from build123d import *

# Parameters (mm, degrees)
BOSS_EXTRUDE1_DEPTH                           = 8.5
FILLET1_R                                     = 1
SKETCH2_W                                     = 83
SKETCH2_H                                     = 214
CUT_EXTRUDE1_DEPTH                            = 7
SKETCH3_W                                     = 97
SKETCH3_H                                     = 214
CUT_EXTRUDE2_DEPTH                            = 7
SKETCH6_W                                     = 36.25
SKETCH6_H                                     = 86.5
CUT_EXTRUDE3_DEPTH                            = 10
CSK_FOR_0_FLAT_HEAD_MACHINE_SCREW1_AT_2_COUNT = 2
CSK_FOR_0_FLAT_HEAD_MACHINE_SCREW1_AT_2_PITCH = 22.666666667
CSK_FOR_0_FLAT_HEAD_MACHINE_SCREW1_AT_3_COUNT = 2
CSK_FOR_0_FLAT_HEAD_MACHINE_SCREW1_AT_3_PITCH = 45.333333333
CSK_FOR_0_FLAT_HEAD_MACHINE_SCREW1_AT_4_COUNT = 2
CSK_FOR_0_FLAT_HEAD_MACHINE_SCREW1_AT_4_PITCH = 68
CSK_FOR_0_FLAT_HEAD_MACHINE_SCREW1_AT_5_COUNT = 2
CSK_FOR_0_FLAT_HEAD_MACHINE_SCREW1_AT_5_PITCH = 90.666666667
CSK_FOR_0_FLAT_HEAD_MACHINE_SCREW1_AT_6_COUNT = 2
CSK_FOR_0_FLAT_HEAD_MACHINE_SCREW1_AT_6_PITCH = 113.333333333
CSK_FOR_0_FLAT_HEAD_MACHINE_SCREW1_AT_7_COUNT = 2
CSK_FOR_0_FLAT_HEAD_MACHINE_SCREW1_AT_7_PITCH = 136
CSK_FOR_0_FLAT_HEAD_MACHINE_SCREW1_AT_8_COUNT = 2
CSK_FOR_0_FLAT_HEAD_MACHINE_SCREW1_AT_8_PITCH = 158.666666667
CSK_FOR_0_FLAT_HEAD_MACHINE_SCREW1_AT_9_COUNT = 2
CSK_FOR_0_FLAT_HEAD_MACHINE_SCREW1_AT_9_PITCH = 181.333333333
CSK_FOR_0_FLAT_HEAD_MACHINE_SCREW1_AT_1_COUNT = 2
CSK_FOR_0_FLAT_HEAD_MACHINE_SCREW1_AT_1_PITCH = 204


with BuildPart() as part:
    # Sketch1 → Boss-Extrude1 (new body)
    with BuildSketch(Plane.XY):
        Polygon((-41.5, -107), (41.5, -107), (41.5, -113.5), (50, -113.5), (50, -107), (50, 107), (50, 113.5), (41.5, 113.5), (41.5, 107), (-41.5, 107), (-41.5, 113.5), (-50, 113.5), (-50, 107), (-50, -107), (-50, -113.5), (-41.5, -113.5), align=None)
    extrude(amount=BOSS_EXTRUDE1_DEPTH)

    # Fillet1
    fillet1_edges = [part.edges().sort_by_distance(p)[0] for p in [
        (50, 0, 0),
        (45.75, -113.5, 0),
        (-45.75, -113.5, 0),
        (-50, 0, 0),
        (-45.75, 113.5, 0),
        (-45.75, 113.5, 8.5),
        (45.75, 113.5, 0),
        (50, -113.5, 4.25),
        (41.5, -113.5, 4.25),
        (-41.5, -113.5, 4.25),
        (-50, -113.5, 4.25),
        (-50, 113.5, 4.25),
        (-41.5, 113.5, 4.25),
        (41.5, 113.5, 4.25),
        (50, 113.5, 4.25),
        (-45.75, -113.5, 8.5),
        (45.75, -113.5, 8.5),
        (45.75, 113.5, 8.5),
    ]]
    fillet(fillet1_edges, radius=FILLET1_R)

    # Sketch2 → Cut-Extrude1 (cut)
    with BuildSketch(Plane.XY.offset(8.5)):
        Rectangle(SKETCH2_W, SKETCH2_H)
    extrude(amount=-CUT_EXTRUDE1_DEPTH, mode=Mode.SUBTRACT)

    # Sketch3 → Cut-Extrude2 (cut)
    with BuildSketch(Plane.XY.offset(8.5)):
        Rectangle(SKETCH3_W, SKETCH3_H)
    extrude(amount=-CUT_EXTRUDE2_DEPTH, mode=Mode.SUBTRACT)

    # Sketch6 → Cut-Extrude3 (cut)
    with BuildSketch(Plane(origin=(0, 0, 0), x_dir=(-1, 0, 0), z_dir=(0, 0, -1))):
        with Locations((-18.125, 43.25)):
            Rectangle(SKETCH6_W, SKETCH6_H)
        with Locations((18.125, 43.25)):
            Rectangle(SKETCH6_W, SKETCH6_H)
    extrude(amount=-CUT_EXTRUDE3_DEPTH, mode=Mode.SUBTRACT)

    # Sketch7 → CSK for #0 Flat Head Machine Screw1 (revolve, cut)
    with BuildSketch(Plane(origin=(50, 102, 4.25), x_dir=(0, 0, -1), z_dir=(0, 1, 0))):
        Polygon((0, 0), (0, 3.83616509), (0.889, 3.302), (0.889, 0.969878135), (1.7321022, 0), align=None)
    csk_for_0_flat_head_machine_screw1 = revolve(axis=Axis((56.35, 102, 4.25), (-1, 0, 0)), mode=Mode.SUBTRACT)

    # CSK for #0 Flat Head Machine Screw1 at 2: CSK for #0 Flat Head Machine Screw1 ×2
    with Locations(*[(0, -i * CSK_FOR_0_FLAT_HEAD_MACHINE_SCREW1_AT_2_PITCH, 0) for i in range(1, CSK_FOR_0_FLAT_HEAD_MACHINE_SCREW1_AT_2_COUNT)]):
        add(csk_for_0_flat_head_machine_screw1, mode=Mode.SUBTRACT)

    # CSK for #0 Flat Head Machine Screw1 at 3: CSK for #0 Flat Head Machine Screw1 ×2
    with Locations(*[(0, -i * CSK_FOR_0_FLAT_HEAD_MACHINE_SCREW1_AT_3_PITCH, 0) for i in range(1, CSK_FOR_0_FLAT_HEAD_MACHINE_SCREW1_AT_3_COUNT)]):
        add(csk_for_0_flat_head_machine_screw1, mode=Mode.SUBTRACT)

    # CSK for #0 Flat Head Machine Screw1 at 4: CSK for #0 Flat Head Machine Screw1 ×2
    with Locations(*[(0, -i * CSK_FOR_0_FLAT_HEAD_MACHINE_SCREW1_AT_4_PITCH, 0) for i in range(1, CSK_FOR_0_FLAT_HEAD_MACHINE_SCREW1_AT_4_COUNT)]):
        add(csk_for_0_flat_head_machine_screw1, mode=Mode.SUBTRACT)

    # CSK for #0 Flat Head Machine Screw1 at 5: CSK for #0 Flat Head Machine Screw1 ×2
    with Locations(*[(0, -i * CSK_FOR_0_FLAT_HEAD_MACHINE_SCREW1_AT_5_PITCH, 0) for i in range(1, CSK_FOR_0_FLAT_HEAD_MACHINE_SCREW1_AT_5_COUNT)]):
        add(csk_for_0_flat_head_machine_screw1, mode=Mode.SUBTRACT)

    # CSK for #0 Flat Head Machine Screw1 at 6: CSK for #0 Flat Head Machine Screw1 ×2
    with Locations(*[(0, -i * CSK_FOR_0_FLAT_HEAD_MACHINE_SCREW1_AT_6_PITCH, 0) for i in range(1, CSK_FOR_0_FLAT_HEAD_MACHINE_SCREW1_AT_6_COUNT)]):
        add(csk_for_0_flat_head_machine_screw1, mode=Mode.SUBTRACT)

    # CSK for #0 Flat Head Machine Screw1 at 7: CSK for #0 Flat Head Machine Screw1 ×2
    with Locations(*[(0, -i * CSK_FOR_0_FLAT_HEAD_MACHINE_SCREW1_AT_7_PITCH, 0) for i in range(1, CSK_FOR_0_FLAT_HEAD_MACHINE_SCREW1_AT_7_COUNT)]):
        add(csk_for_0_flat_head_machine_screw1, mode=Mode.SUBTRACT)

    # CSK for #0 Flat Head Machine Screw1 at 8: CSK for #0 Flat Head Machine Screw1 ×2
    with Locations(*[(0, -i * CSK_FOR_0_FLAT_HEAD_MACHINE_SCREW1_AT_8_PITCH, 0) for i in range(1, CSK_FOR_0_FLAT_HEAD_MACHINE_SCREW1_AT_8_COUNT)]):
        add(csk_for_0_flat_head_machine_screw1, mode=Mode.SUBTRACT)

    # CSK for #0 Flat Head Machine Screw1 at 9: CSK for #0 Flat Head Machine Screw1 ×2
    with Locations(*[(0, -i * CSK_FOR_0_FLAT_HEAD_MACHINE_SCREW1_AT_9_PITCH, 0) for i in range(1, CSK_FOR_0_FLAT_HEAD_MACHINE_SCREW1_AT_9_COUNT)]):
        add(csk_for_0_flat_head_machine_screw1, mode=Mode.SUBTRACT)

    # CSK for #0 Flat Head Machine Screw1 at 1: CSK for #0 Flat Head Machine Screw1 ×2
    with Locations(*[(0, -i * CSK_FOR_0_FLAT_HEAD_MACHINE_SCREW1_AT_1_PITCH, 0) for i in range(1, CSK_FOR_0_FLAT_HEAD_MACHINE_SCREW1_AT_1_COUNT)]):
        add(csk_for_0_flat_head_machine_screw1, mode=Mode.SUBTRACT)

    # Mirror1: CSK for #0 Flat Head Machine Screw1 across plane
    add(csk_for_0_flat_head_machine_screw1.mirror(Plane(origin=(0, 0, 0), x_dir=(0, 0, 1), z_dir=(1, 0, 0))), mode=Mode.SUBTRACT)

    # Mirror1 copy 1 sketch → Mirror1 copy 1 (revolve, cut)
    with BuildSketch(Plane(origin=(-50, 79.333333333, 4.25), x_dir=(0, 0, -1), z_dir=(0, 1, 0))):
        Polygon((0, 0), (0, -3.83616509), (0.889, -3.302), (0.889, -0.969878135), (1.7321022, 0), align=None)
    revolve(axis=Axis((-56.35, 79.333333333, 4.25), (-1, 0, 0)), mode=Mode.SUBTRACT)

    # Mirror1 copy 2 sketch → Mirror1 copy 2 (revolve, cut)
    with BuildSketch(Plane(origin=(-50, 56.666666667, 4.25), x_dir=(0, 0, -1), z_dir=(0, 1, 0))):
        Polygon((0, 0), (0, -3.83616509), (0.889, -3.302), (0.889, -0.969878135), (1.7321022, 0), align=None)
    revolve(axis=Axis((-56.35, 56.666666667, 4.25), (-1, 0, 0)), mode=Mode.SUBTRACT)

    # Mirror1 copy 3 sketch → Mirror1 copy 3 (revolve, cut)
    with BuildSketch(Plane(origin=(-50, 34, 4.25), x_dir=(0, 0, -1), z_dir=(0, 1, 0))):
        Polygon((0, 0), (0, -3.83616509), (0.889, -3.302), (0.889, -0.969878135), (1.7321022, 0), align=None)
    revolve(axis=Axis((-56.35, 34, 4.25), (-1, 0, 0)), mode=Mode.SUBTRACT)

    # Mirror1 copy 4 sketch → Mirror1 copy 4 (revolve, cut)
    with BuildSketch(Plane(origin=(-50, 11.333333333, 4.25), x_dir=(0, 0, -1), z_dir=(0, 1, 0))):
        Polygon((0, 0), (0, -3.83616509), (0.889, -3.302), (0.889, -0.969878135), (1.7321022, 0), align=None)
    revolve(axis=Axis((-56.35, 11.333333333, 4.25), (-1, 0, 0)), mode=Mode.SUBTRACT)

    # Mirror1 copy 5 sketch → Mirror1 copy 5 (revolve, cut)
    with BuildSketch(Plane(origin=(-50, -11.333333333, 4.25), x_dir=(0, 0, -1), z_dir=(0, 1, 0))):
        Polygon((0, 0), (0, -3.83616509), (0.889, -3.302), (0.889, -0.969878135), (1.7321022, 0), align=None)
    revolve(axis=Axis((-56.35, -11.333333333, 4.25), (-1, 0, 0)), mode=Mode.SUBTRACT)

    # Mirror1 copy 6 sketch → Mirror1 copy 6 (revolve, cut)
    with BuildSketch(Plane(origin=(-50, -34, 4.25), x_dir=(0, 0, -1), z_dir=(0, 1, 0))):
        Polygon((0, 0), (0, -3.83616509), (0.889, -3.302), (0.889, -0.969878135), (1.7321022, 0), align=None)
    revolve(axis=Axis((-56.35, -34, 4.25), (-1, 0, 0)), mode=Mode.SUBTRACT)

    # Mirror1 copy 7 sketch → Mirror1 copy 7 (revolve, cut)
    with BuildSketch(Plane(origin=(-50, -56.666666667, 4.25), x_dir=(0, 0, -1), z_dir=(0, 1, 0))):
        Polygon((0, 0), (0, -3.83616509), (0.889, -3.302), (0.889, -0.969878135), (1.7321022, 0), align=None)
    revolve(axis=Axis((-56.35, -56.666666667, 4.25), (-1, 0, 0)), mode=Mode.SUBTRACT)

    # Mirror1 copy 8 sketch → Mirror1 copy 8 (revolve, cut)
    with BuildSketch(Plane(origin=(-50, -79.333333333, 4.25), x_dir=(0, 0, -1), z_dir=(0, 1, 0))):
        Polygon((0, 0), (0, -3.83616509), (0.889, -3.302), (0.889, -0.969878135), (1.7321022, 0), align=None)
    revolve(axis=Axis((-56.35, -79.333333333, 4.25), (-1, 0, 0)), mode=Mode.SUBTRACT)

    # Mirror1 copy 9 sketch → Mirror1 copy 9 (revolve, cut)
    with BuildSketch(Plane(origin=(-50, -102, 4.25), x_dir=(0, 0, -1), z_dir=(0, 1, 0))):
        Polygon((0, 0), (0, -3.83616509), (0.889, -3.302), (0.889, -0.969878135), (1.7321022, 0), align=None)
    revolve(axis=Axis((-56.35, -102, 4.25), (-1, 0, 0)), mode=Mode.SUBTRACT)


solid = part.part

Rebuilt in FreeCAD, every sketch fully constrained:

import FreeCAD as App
import Part
import Sketcher

V = App.Vector
Q = App.Units.Quantity


def edges_at(feature, points):
    """Names of the edges that pass closest to the given points."""
    edges = feature.Shape.Edges
    near = lambda p: min(range(len(edges)), key=lambda i: edges[i].distToShape(Part.Vertex(*p))[0])
    return sorted({f"Edge{near(p) + 1}" for p in points})

doc = App.newDocument("Part")
body = doc.addObject("PartDesign::Body", "Body")

# Sketch on XY plane
sketch1 = body.newObject("Sketcher::SketchObject", "Sketch")
sketch1.AttachmentSupport = (doc.getObject("XY_Plane"), [""])
sketch1.MapMode = "FlatFace"
sketch1.addGeometry([
    Part.LineSegment(V(-41.5, -107, 0), V(41.5, -107, 0)),  # 0
    Part.LineSegment(V(41.5, -107, 0), V(41.5, -113.5, 0)),  # 1
    Part.LineSegment(V(41.5, -113.5, 0), V(50, -113.5, 0)),  # 2
    Part.LineSegment(V(50, -113.5, 0), V(50, 113.5, 0)),  # 3
    Part.LineSegment(V(50, 113.5, 0), V(41.5, 113.5, 0)),  # 4
    Part.LineSegment(V(41.5, 113.5, 0), V(41.5, 107, 0)),  # 5
    Part.LineSegment(V(41.5, 107, 0), V(-41.5, 107, 0)),  # 6
    Part.LineSegment(V(-41.5, 107, 0), V(-41.5, 113.5, 0)),  # 7
    Part.LineSegment(V(-41.5, 113.5, 0), V(-50, 113.5, 0)),  # 8
    Part.LineSegment(V(-50, 113.5, 0), V(-50, -113.5, 0)),  # 9
    Part.LineSegment(V(-50, -113.5, 0), V(-41.5, -113.5, 0)),  # 10
    Part.LineSegment(V(-41.5, -113.5, 0), V(-41.5, -107, 0)),  # 11
], False)
sketch1.addConstraint([
    Sketcher.Constraint("Coincident", 0, 2, 1, 1),
    Sketcher.Constraint("Coincident", 1, 2, 2, 1),
    Sketcher.Constraint("Coincident", 2, 2, 3, 1),
    Sketcher.Constraint("Coincident", 3, 2, 4, 1),
    Sketcher.Constraint("Coincident", 4, 2, 5, 1),
    Sketcher.Constraint("Coincident", 5, 2, 6, 1),
    Sketcher.Constraint("Coincident", 6, 2, 7, 1),
    Sketcher.Constraint("Coincident", 7, 2, 8, 1),
    Sketcher.Constraint("Coincident", 8, 2, 9, 1),
    Sketcher.Constraint("Coincident", 9, 2, 10, 1),
    Sketcher.Constraint("Coincident", 10, 2, 11, 1),
    Sketcher.Constraint("Coincident", 11, 2, 0, 1),
    Sketcher.Constraint("Horizontal", 0),
    Sketcher.Constraint("Vertical", 1),
    Sketcher.Constraint("Horizontal", 2),
    Sketcher.Constraint("Vertical", 3),
    Sketcher.Constraint("Horizontal", 4),
    Sketcher.Constraint("Vertical", 5),
    Sketcher.Constraint("Horizontal", 6),
    Sketcher.Constraint("Vertical", 7),
    Sketcher.Constraint("Horizontal", 8),
    Sketcher.Constraint("Vertical", 9),
    Sketcher.Constraint("Horizontal", 10),
    Sketcher.Constraint("Vertical", 11),
    Sketcher.Constraint("Symmetric", 0, 2, 6, 2, -1, 1),
    Sketcher.Constraint("Symmetric", 2, 2, 8, 2, -1, 1),
    Sketcher.Constraint("Symmetric", 4, 2, 10, 2, -1, 1),
    Sketcher.Constraint("Symmetric", 4, 2, 7, 2, -2),
    Sketcher.Constraint("DistanceX", 0, 1, 0, 2, 83.0),
    Sketcher.Constraint("DistanceY", 3, 1, 3, 2, 227.0),
    Sketcher.Constraint("DistanceX", 2, 1, 2, 2, 8.5),
    Sketcher.Constraint("DistanceY", 1, 2, 1, 1, 6.5),
])
pad1 = body.newObject("PartDesign::Pad", "Pad")
pad1.Profile = sketch1
pad1.Length = 8.5
doc.recompute()

fillet = body.newObject("PartDesign::Fillet", "Fillet")
fillet.Base = (pad1, edges_at(pad1, [
    (50, 0, 0),
    (45.75, -113.5, 0),
    (-45.75, -113.5, 0),
    (-50, 0, 0),
    (-45.75, 113.5, 0),
    (-45.75, 113.5, 8.5),
    (45.75, 113.5, 0),
    (50, -113.5, 4.25),
    (41.5, -113.5, 4.25),
    (-41.5, -113.5, 4.25),
    (-50, -113.5, 4.25),
    (-50, 113.5, 4.25),
    (-41.5, 113.5, 4.25),
    (41.5, 113.5, 4.25),
    (50, 113.5, 4.25),
    (-45.75, -113.5, 8.5),
    (45.75, -113.5, 8.5),
    (45.75, 113.5, 8.5),
]))
fillet.Radius = 1

# Sketch on XY plane
sketch2 = body.newObject("Sketcher::SketchObject", "Sketch001")
sketch2.AttachmentSupport = (doc.getObject("XY_Plane"), [""])
sketch2.MapMode = "FlatFace"
sketch2.AttachmentOffset = App.Placement(V(0, 0, 8.5), App.Rotation())
sketch2.addGeometry([
    Part.LineSegment(V(-41.5, 107, 0), V(-41.5, -107, 0)),
    Part.LineSegment(V(-41.5, -107, 0), V(41.5, -107, 0)),
    Part.LineSegment(V(41.5, -107, 0), V(41.5, 107, 0)),
    Part.LineSegment(V(41.5, 107, 0), V(-41.5, 107, 0)),
], False)
sketch2.addConstraint([
    Sketcher.Constraint("Coincident", 0, 2, 1, 1),
    Sketcher.Constraint("Coincident", 1, 2, 2, 1),
    Sketcher.Constraint("Coincident", 2, 2, 3, 1),
    Sketcher.Constraint("Coincident", 3, 2, 0, 1),
    Sketcher.Constraint("Vertical", 0),
    Sketcher.Constraint("Horizontal", 1),
    Sketcher.Constraint("Vertical", 2),
    Sketcher.Constraint("Horizontal", 3),
    Sketcher.Constraint("Symmetric", 0, 2, 2, 2, -1, 1),
    Sketcher.Constraint("DistanceX", 1, 1, 1, 2, 83.0),
    Sketcher.Constraint("DistanceY", 0, 2, 0, 1, 214.0),
])
pocket1 = body.newObject("PartDesign::Pocket", "Pocket")
pocket1.Profile = sketch2
pocket1.Length = 7

# Sketch on XY plane
sketch3 = body.newObject("Sketcher::SketchObject", "Sketch002")
sketch3.AttachmentSupport = (doc.getObject("XY_Plane"), [""])
sketch3.MapMode = "FlatFace"
sketch3.AttachmentOffset = App.Placement(V(0, 0, 8.5), App.Rotation())
sketch3.addGeometry([
    Part.LineSegment(V(-48.5, 107, 0), V(-48.5, -107, 0)),
    Part.LineSegment(V(-48.5, -107, 0), V(48.5, -107, 0)),
    Part.LineSegment(V(48.5, -107, 0), V(48.5, 107, 0)),
    Part.LineSegment(V(48.5, 107, 0), V(-48.5, 107, 0)),
], False)
sketch3.addConstraint([
    Sketcher.Constraint("Coincident", 0, 2, 1, 1),
    Sketcher.Constraint("Coincident", 1, 2, 2, 1),
    Sketcher.Constraint("Coincident", 2, 2, 3, 1),
    Sketcher.Constraint("Coincident", 3, 2, 0, 1),
    Sketcher.Constraint("Vertical", 0),
    Sketcher.Constraint("Horizontal", 1),
    Sketcher.Constraint("Vertical", 2),
    Sketcher.Constraint("Horizontal", 3),
    Sketcher.Constraint("Symmetric", 0, 2, 2, 2, -1, 1),
    Sketcher.Constraint("DistanceX", 1, 1, 1, 2, 97.0),
    Sketcher.Constraint("DistanceY", 0, 2, 0, 1, 214.0),
])
pocket2 = body.newObject("PartDesign::Pocket", "Pocket001")
pocket2.Profile = sketch3
pocket2.Length = 7

# Sketch on XY plane
sketch4 = body.newObject("Sketcher::SketchObject", "Sketch003")
sketch4.AttachmentSupport = (doc.getObject("XY_Plane"), [""])
sketch4.MapMode = "FlatFace"
sketch4.addGeometry([
    Part.LineSegment(V(36.25, 86.5, 0), V(36.25, 0, 0)),
    Part.LineSegment(V(36.25, 0, 0), V(-36.25, 0, 0)),
    Part.LineSegment(V(-36.25, 0, 0), V(-36.25, 86.5, 0)),
    Part.LineSegment(V(-36.25, 86.5, 0), V(36.25, 86.5, 0)),
], False)
sketch4.addConstraint([
    Sketcher.Constraint("Coincident", 0, 2, 1, 1),
    Sketcher.Constraint("Coincident", 1, 2, 2, 1),
    Sketcher.Constraint("Coincident", 2, 2, 3, 1),
    Sketcher.Constraint("Coincident", 3, 2, 0, 1),
    Sketcher.Constraint("Vertical", 0),
    Sketcher.Constraint("Horizontal", 1),
    Sketcher.Constraint("Vertical", 2),
    Sketcher.Constraint("Horizontal", 3),
    Sketcher.Constraint("Symmetric", 0, 2, 1, 2, -1, 1),
    Sketcher.Constraint("DistanceX", 1, 2, 1, 1, 72.5),
    Sketcher.Constraint("DistanceY", 0, 2, 0, 1, 86.5),
])
pocket3 = body.newObject("PartDesign::Pocket", "Pocket002")
pocket3.Profile = sketch4
pocket3.Length = 10
pocket3.Reversed = True

# Sketch on XZ plane
sketch5 = body.newObject("Sketcher::SketchObject", "Sketch004")
sketch5.AttachmentSupport = (doc.getObject("XZ_Plane"), [""])
sketch5.MapMode = "FlatFace"
sketch5.AttachmentOffset = App.Placement(V(0, 0, -102), App.Rotation())
sketch5.addGeometry([
    Part.LineSegment(V(46.163835, 4.25, 0), V(50, 4.25, 0)),  # 0
    Part.LineSegment(V(50, 4.25, 0), V(50, 2.517898, 0)),  # 1
    Part.LineSegment(V(50, 2.517898, 0), V(49.030122, 3.361, 0)),  # 2
    Part.LineSegment(V(49.030122, 3.361, 0), V(46.698, 3.361, 0)),  # 3
    Part.LineSegment(V(46.698, 3.361, 0), V(46.163835, 4.25, 0)),  # 4
], False)
sketch5.addGeometry(Part.LineSegment(V(50, 4.25, 0), V(46.163835, 4.25, 0)), True)  # axis
sketch5.addConstraint([
    Sketcher.Constraint("Coincident", 0, 2, 1, 1),
    Sketcher.Constraint("Coincident", 1, 2, 2, 1),
    Sketcher.Constraint("Coincident", 2, 2, 3, 1),
    Sketcher.Constraint("Coincident", 3, 2, 4, 1),
    Sketcher.Constraint("Coincident", 4, 2, 0, 1),
    Sketcher.Constraint("Horizontal", 0),
    Sketcher.Constraint("Vertical", 1),
    Sketcher.Constraint("Horizontal", 3),
    Sketcher.Constraint("Horizontal", 5),
    Sketcher.Constraint("Coincident", 5, 1, 0, 2),
    Sketcher.Constraint("Equal", 0, 5),
    Sketcher.Constraint("Angle", 2, Q("139 deg")),
    Sketcher.Constraint("Angle", 4, Q("121 deg")),
    Sketcher.Constraint("DistanceX", -1, 1, 0, 2, 50.0),
    Sketcher.Constraint("DistanceY", -1, 1, 0, 2, 4.25),
    Sketcher.Constraint("DistanceY", -1, 1, 2, 2, 3.361),
    Sketcher.Constraint("DistanceX", -1, 1, 3, 2, 46.698),
    Sketcher.Constraint("Distance", 2, 1.285101),
])
groove = body.newObject("PartDesign::Groove", "Groove")
groove.Profile = sketch5
groove.ReferenceAxis = (sketch5, ["Axis0"])
groove.Angle = 360
doc.recompute()

linearpattern = body.newObject("PartDesign::LinearPattern", "LinearPattern")
linearpattern.Originals = [groove]
linearpattern.Direction = (doc.getObject("Y_Axis"), [""])
linearpattern.Mode = "offset"
linearpattern.Offset = 22.666667
linearpattern.Occurrences = 2
linearpattern.Reversed = True
body.Tip = linearpattern
doc.recompute()

linearpattern2 = body.newObject("PartDesign::LinearPattern", "LinearPattern001")
linearpattern2.Originals = [groove]
linearpattern2.Direction = (doc.getObject("Y_Axis"), [""])
linearpattern2.Mode = "offset"
linearpattern2.Offset = 45.333333
linearpattern2.Occurrences = 2
linearpattern2.Reversed = True
body.Tip = linearpattern2
doc.recompute()

linearpattern3 = body.newObject("PartDesign::LinearPattern", "LinearPattern002")
linearpattern3.Originals = [groove]
linearpattern3.Direction = (doc.getObject("Y_Axis"), [""])
linearpattern3.Mode = "offset"
linearpattern3.Offset = 68
linearpattern3.Occurrences = 2
linearpattern3.Reversed = True
body.Tip = linearpattern3
doc.recompute()

linearpattern4 = body.newObject("PartDesign::LinearPattern", "LinearPattern003")
linearpattern4.Originals = [groove]
linearpattern4.Direction = (doc.getObject("Y_Axis"), [""])
linearpattern4.Mode = "offset"
linearpattern4.Offset = 90.666667
linearpattern4.Occurrences = 2
linearpattern4.Reversed = True
body.Tip = linearpattern4
doc.recompute()

linearpattern5 = body.newObject("PartDesign::LinearPattern", "LinearPattern004")
linearpattern5.Originals = [groove]
linearpattern5.Direction = (doc.getObject("Y_Axis"), [""])
linearpattern5.Mode = "offset"
linearpattern5.Offset = 113.333333
linearpattern5.Occurrences = 2
linearpattern5.Reversed = True
body.Tip = linearpattern5
doc.recompute()

linearpattern6 = body.newObject("PartDesign::LinearPattern", "LinearPattern005")
linearpattern6.Originals = [groove]
linearpattern6.Direction = (doc.getObject("Y_Axis"), [""])
linearpattern6.Mode = "offset"
linearpattern6.Offset = 136
linearpattern6.Occurrences = 2
linearpattern6.Reversed = True
body.Tip = linearpattern6
doc.recompute()

linearpattern7 = body.newObject("PartDesign::LinearPattern", "LinearPattern006")
linearpattern7.Originals = [groove]
linearpattern7.Direction = (doc.getObject("Y_Axis"), [""])
linearpattern7.Mode = "offset"
linearpattern7.Offset = 158.666667
linearpattern7.Occurrences = 2
linearpattern7.Reversed = True
body.Tip = linearpattern7
doc.recompute()

linearpattern8 = body.newObject("PartDesign::LinearPattern", "LinearPattern007")
linearpattern8.Originals = [groove]
linearpattern8.Direction = (doc.getObject("Y_Axis"), [""])
linearpattern8.Mode = "offset"
linearpattern8.Offset = 181.333333
linearpattern8.Occurrences = 2
linearpattern8.Reversed = True
body.Tip = linearpattern8
doc.recompute()

linearpattern9 = body.newObject("PartDesign::LinearPattern", "LinearPattern008")
linearpattern9.Originals = [groove]
linearpattern9.Direction = (doc.getObject("Y_Axis"), [""])
linearpattern9.Mode = "offset"
linearpattern9.Offset = 204
linearpattern9.Occurrences = 2
linearpattern9.Reversed = True
body.Tip = linearpattern9
doc.recompute()

mirrored = body.newObject("PartDesign::Mirrored", "Mirrored")
mirrored.Originals = [groove]
mirrored.MirrorPlane = (doc.getObject("YZ_Plane"), [""])
body.Tip = mirrored

# Sketch on XZ plane
sketch6 = body.newObject("Sketcher::SketchObject", "Sketch005")
sketch6.AttachmentSupport = (doc.getObject("XZ_Plane"), [""])
sketch6.MapMode = "FlatFace"
sketch6.AttachmentOffset = App.Placement(V(0, 0, -79.333333), App.Rotation())
sketch6.addGeometry([
    Part.LineSegment(V(-50, 4.25, 0), V(-46.163835, 4.25, 0)),  # 0
    Part.LineSegment(V(-46.163835, 4.25, 0), V(-46.698, 3.361, 0)),  # 1
    Part.LineSegment(V(-46.698, 3.361, 0), V(-49.030122, 3.361, 0)),  # 2
    Part.LineSegment(V(-49.030122, 3.361, 0), V(-50, 2.517898, 0)),  # 3
    Part.LineSegment(V(-50, 2.517898, 0), V(-50, 4.25, 0)),  # 4
], False)
sketch6.addGeometry(Part.LineSegment(V(-46.163835, 4.25, 0), V(-50, 4.25, 0)), True)  # axis
sketch6.addConstraint([
    Sketcher.Constraint("Coincident", 0, 2, 1, 1),
    Sketcher.Constraint("Coincident", 1, 2, 2, 1),
    Sketcher.Constraint("Coincident", 2, 2, 3, 1),
    Sketcher.Constraint("Coincident", 3, 2, 4, 1),
    Sketcher.Constraint("Coincident", 4, 2, 0, 1),
    Sketcher.Constraint("Horizontal", 0),
    Sketcher.Constraint("Horizontal", 2),
    Sketcher.Constraint("Vertical", 4),
    Sketcher.Constraint("Horizontal", 5),
    Sketcher.Constraint("Coincident", 5, 1, 0, 2),
    Sketcher.Constraint("Vertical", 3, 2, 5, 2),
    Sketcher.Constraint("Angle", 1, Q("-121 deg")),
    Sketcher.Constraint("Angle", 3, Q("-139 deg")),
    Sketcher.Constraint("DistanceX", 3, 2, -1, 1, 50.0),
    Sketcher.Constraint("DistanceY", -1, 1, 0, 2, 4.25),
    Sketcher.Constraint("DistanceX", 1, 2, -1, 1, 46.698),
    Sketcher.Constraint("DistanceY", -1, 1, 1, 2, 3.361),
    Sketcher.Constraint("Distance", 3, 1.285101),
])
groove2 = body.newObject("PartDesign::Groove", "Groove001")
groove2.Profile = sketch6
groove2.ReferenceAxis = (sketch6, ["Axis0"])
groove2.Angle = 360

# Sketch on XZ plane
sketch7 = body.newObject("Sketcher::SketchObject", "Sketch006")
sketch7.AttachmentSupport = (doc.getObject("XZ_Plane"), [""])
sketch7.MapMode = "FlatFace"
sketch7.AttachmentOffset = App.Placement(V(0, 0, -56.666667), App.Rotation())
sketch7.addGeometry([
    Part.LineSegment(V(-50, 4.25, 0), V(-46.163835, 4.25, 0)),  # 0
    Part.LineSegment(V(-46.163835, 4.25, 0), V(-46.698, 3.361, 0)),  # 1
    Part.LineSegment(V(-46.698, 3.361, 0), V(-49.030122, 3.361, 0)),  # 2
    Part.LineSegment(V(-49.030122, 3.361, 0), V(-50, 2.517898, 0)),  # 3
    Part.LineSegment(V(-50, 2.517898, 0), V(-50, 4.25, 0)),  # 4
], False)
sketch7.addGeometry(Part.LineSegment(V(-46.163835, 4.25, 0), V(-50, 4.25, 0)), True)  # axis
sketch7.addConstraint([
    Sketcher.Constraint("Coincident", 0, 2, 1, 1),
    Sketcher.Constraint("Coincident", 1, 2, 2, 1),
    Sketcher.Constraint("Coincident", 2, 2, 3, 1),
    Sketcher.Constraint("Coincident", 3, 2, 4, 1),
    Sketcher.Constraint("Coincident", 4, 2, 0, 1),
    Sketcher.Constraint("Horizontal", 0),
    Sketcher.Constraint("Horizontal", 2),
    Sketcher.Constraint("Vertical", 4),
    Sketcher.Constraint("Horizontal", 5),
    Sketcher.Constraint("Coincident", 5, 1, 0, 2),
    Sketcher.Constraint("Vertical", 3, 2, 5, 2),
    Sketcher.Constraint("Angle", 1, Q("-121 deg")),
    Sketcher.Constraint("Angle", 3, Q("-139 deg")),
    Sketcher.Constraint("DistanceX", 3, 2, -1, 1, 50.0),
    Sketcher.Constraint("DistanceY", -1, 1, 0, 2, 4.25),
    Sketcher.Constraint("DistanceX", 1, 2, -1, 1, 46.698),
    Sketcher.Constraint("DistanceY", -1, 1, 1, 2, 3.361),
    Sketcher.Constraint("Distance", 3, 1.285101),
])
groove3 = body.newObject("PartDesign::Groove", "Groove002")
groove3.Profile = sketch7
groove3.ReferenceAxis = (sketch7, ["Axis0"])
groove3.Angle = 360

# Sketch on XZ plane
sketch8 = body.newObject("Sketcher::SketchObject", "Sketch007")
sketch8.AttachmentSupport = (doc.getObject("XZ_Plane"), [""])
sketch8.MapMode = "FlatFace"
sketch8.AttachmentOffset = App.Placement(V(0, 0, -34), App.Rotation())
sketch8.addGeometry([
    Part.LineSegment(V(-50, 4.25, 0), V(-46.163835, 4.25, 0)),  # 0
    Part.LineSegment(V(-46.163835, 4.25, 0), V(-46.698, 3.361, 0)),  # 1
    Part.LineSegment(V(-46.698, 3.361, 0), V(-49.030122, 3.361, 0)),  # 2
    Part.LineSegment(V(-49.030122, 3.361, 0), V(-50, 2.517898, 0)),  # 3
    Part.LineSegment(V(-50, 2.517898, 0), V(-50, 4.25, 0)),  # 4
], False)
sketch8.addGeometry(Part.LineSegment(V(-46.163835, 4.25, 0), V(-50, 4.25, 0)), True)  # axis
sketch8.addConstraint([
    Sketcher.Constraint("Coincident", 0, 2, 1, 1),
    Sketcher.Constraint("Coincident", 1, 2, 2, 1),
    Sketcher.Constraint("Coincident", 2, 2, 3, 1),
    Sketcher.Constraint("Coincident", 3, 2, 4, 1),
    Sketcher.Constraint("Coincident", 4, 2, 0, 1),
    Sketcher.Constraint("Horizontal", 0),
    Sketcher.Constraint("Horizontal", 2),
    Sketcher.Constraint("Vertical", 4),
    Sketcher.Constraint("Horizontal", 5),
    Sketcher.Constraint("Coincident", 5, 1, 0, 2),
    Sketcher.Constraint("Vertical", 3, 2, 5, 2),
    Sketcher.Constraint("Angle", 1, Q("-121 deg")),
    Sketcher.Constraint("Angle", 3, Q("-139 deg")),
    Sketcher.Constraint("DistanceX", 3, 2, -1, 1, 50.0),
    Sketcher.Constraint("DistanceY", -1, 1, 0, 2, 4.25),
    Sketcher.Constraint("DistanceX", 1, 2, -1, 1, 46.698),
    Sketcher.Constraint("DistanceY", -1, 1, 1, 2, 3.361),
    Sketcher.Constraint("Distance", 3, 1.285101),
])
groove4 = body.newObject("PartDesign::Groove", "Groove003")
groove4.Profile = sketch8
groove4.ReferenceAxis = (sketch8, ["Axis0"])
groove4.Angle = 360

# Sketch on XZ plane
sketch9 = body.newObject("Sketcher::SketchObject", "Sketch008")
sketch9.AttachmentSupport = (doc.getObject("XZ_Plane"), [""])
sketch9.MapMode = "FlatFace"
sketch9.AttachmentOffset = App.Placement(V(0, 0, -11.333333), App.Rotation())
sketch9.addGeometry([
    Part.LineSegment(V(-50, 4.25, 0), V(-46.163835, 4.25, 0)),  # 0
    Part.LineSegment(V(-46.163835, 4.25, 0), V(-46.698, 3.361, 0)),  # 1
    Part.LineSegment(V(-46.698, 3.361, 0), V(-49.030122, 3.361, 0)),  # 2
    Part.LineSegment(V(-49.030122, 3.361, 0), V(-50, 2.517898, 0)),  # 3
    Part.LineSegment(V(-50, 2.517898, 0), V(-50, 4.25, 0)),  # 4
], False)
sketch9.addGeometry(Part.LineSegment(V(-46.163835, 4.25, 0), V(-50, 4.25, 0)), True)  # axis
sketch9.addConstraint([
    Sketcher.Constraint("Coincident", 0, 2, 1, 1),
    Sketcher.Constraint("Coincident", 1, 2, 2, 1),
    Sketcher.Constraint("Coincident", 2, 2, 3, 1),
    Sketcher.Constraint("Coincident", 3, 2, 4, 1),
    Sketcher.Constraint("Coincident", 4, 2, 0, 1),
    Sketcher.Constraint("Horizontal", 0),
    Sketcher.Constraint("Horizontal", 2),
    Sketcher.Constraint("Vertical", 4),
    Sketcher.Constraint("Horizontal", 5),
    Sketcher.Constraint("Coincident", 5, 1, 0, 2),
    Sketcher.Constraint("Vertical", 3, 2, 5, 2),
    Sketcher.Constraint("Angle", 1, Q("-121 deg")),
    Sketcher.Constraint("Angle", 3, Q("-139 deg")),
    Sketcher.Constraint("DistanceX", 3, 2, -1, 1, 50.0),
    Sketcher.Constraint("DistanceY", -1, 1, 0, 2, 4.25),
    Sketcher.Constraint("DistanceX", 1, 2, -1, 1, 46.698),
    Sketcher.Constraint("DistanceY", -1, 1, 1, 2, 3.361),
    Sketcher.Constraint("Distance", 3, 1.285101),
])
groove5 = body.newObject("PartDesign::Groove", "Groove004")
groove5.Profile = sketch9
groove5.ReferenceAxis = (sketch9, ["Axis0"])
groove5.Angle = 360

# Sketch on XZ plane
sketch10 = body.newObject("Sketcher::SketchObject", "Sketch009")
sketch10.AttachmentSupport = (doc.getObject("XZ_Plane"), [""])
sketch10.MapMode = "FlatFace"
sketch10.AttachmentOffset = App.Placement(V(0, 0, 11.333333), App.Rotation())
sketch10.addGeometry([
    Part.LineSegment(V(-50, 4.25, 0), V(-46.163835, 4.25, 0)),  # 0
    Part.LineSegment(V(-46.163835, 4.25, 0), V(-46.698, 3.361, 0)),  # 1
    Part.LineSegment(V(-46.698, 3.361, 0), V(-49.030122, 3.361, 0)),  # 2
    Part.LineSegment(V(-49.030122, 3.361, 0), V(-50, 2.517898, 0)),  # 3
    Part.LineSegment(V(-50, 2.517898, 0), V(-50, 4.25, 0)),  # 4
], False)
sketch10.addGeometry(Part.LineSegment(V(-46.163835, 4.25, 0), V(-50, 4.25, 0)), True)  # axis
sketch10.addConstraint([
    Sketcher.Constraint("Coincident", 0, 2, 1, 1),
    Sketcher.Constraint("Coincident", 1, 2, 2, 1),
    Sketcher.Constraint("Coincident", 2, 2, 3, 1),
    Sketcher.Constraint("Coincident", 3, 2, 4, 1),
    Sketcher.Constraint("Coincident", 4, 2, 0, 1),
    Sketcher.Constraint("Horizontal", 0),
    Sketcher.Constraint("Horizontal", 2),
    Sketcher.Constraint("Vertical", 4),
    Sketcher.Constraint("Horizontal", 5),
    Sketcher.Constraint("Coincident", 5, 1, 0, 2),
    Sketcher.Constraint("Vertical", 3, 2, 5, 2),
    Sketcher.Constraint("Angle", 1, Q("-121 deg")),
    Sketcher.Constraint("Angle", 3, Q("-139 deg")),
    Sketcher.Constraint("DistanceX", 3, 2, -1, 1, 50.0),
    Sketcher.Constraint("DistanceY", -1, 1, 0, 2, 4.25),
    Sketcher.Constraint("DistanceX", 1, 2, -1, 1, 46.698),
    Sketcher.Constraint("DistanceY", -1, 1, 1, 2, 3.361),
    Sketcher.Constraint("Distance", 3, 1.285101),
])
groove6 = body.newObject("PartDesign::Groove", "Groove005")
groove6.Profile = sketch10
groove6.ReferenceAxis = (sketch10, ["Axis0"])
groove6.Angle = 360

# Sketch on XZ plane
sketch11 = body.newObject("Sketcher::SketchObject", "Sketch010")
sketch11.AttachmentSupport = (doc.getObject("XZ_Plane"), [""])
sketch11.MapMode = "FlatFace"
sketch11.AttachmentOffset = App.Placement(V(0, 0, 34), App.Rotation())
sketch11.addGeometry([
    Part.LineSegment(V(-50, 4.25, 0), V(-46.163835, 4.25, 0)),  # 0
    Part.LineSegment(V(-46.163835, 4.25, 0), V(-46.698, 3.361, 0)),  # 1
    Part.LineSegment(V(-46.698, 3.361, 0), V(-49.030122, 3.361, 0)),  # 2
    Part.LineSegment(V(-49.030122, 3.361, 0), V(-50, 2.517898, 0)),  # 3
    Part.LineSegment(V(-50, 2.517898, 0), V(-50, 4.25, 0)),  # 4
], False)
sketch11.addGeometry(Part.LineSegment(V(-46.163835, 4.25, 0), V(-50, 4.25, 0)), True)  # axis
sketch11.addConstraint([
    Sketcher.Constraint("Coincident", 0, 2, 1, 1),
    Sketcher.Constraint("Coincident", 1, 2, 2, 1),
    Sketcher.Constraint("Coincident", 2, 2, 3, 1),
    Sketcher.Constraint("Coincident", 3, 2, 4, 1),
    Sketcher.Constraint("Coincident", 4, 2, 0, 1),
    Sketcher.Constraint("Horizontal", 0),
    Sketcher.Constraint("Horizontal", 2),
    Sketcher.Constraint("Vertical", 4),
    Sketcher.Constraint("Horizontal", 5),
    Sketcher.Constraint("Coincident", 5, 1, 0, 2),
    Sketcher.Constraint("Vertical", 3, 2, 5, 2),
    Sketcher.Constraint("Angle", 1, Q("-121 deg")),
    Sketcher.Constraint("Angle", 3, Q("-139 deg")),
    Sketcher.Constraint("DistanceX", 3, 2, -1, 1, 50.0),
    Sketcher.Constraint("DistanceY", -1, 1, 0, 2, 4.25),
    Sketcher.Constraint("DistanceX", 1, 2, -1, 1, 46.698),
    Sketcher.Constraint("DistanceY", -1, 1, 1, 2, 3.361),
    Sketcher.Constraint("Distance", 3, 1.285101),
])
groove7 = body.newObject("PartDesign::Groove", "Groove006")
groove7.Profile = sketch11
groove7.ReferenceAxis = (sketch11, ["Axis0"])
groove7.Angle = 360

# Sketch on XZ plane
sketch12 = body.newObject("Sketcher::SketchObject", "Sketch011")
sketch12.AttachmentSupport = (doc.getObject("XZ_Plane"), [""])
sketch12.MapMode = "FlatFace"
sketch12.AttachmentOffset = App.Placement(V(0, 0, 56.666667), App.Rotation())
sketch12.addGeometry([
    Part.LineSegment(V(-50, 4.25, 0), V(-46.163835, 4.25, 0)),  # 0
    Part.LineSegment(V(-46.163835, 4.25, 0), V(-46.698, 3.361, 0)),  # 1
    Part.LineSegment(V(-46.698, 3.361, 0), V(-49.030122, 3.361, 0)),  # 2
    Part.LineSegment(V(-49.030122, 3.361, 0), V(-50, 2.517898, 0)),  # 3
    Part.LineSegment(V(-50, 2.517898, 0), V(-50, 4.25, 0)),  # 4
], False)
sketch12.addGeometry(Part.LineSegment(V(-46.163835, 4.25, 0), V(-50, 4.25, 0)), True)  # axis
sketch12.addConstraint([
    Sketcher.Constraint("Coincident", 0, 2, 1, 1),
    Sketcher.Constraint("Coincident", 1, 2, 2, 1),
    Sketcher.Constraint("Coincident", 2, 2, 3, 1),
    Sketcher.Constraint("Coincident", 3, 2, 4, 1),
    Sketcher.Constraint("Coincident", 4, 2, 0, 1),
    Sketcher.Constraint("Horizontal", 0),
    Sketcher.Constraint("Horizontal", 2),
    Sketcher.Constraint("Vertical", 4),
    Sketcher.Constraint("Horizontal", 5),
    Sketcher.Constraint("Coincident", 5, 1, 0, 2),
    Sketcher.Constraint("Vertical", 3, 2, 5, 2),
    Sketcher.Constraint("Angle", 1, Q("-121 deg")),
    Sketcher.Constraint("Angle", 3, Q("-139 deg")),
    Sketcher.Constraint("DistanceX", 3, 2, -1, 1, 50.0),
    Sketcher.Constraint("DistanceY", -1, 1, 0, 2, 4.25),
    Sketcher.Constraint("DistanceX", 1, 2, -1, 1, 46.698),
    Sketcher.Constraint("DistanceY", -1, 1, 1, 2, 3.361),
    Sketcher.Constraint("Distance", 3, 1.285101),
])
groove8 = body.newObject("PartDesign::Groove", "Groove007")
groove8.Profile = sketch12
groove8.ReferenceAxis = (sketch12, ["Axis0"])
groove8.Angle = 360

# Sketch on XZ plane
sketch13 = body.newObject("Sketcher::SketchObject", "Sketch012")
sketch13.AttachmentSupport = (doc.getObject("XZ_Plane"), [""])
sketch13.MapMode = "FlatFace"
sketch13.AttachmentOffset = App.Placement(V(0, 0, 79.333333), App.Rotation())
sketch13.addGeometry([
    Part.LineSegment(V(-50, 4.25, 0), V(-46.163835, 4.25, 0)),  # 0
    Part.LineSegment(V(-46.163835, 4.25, 0), V(-46.698, 3.361, 0)),  # 1
    Part.LineSegment(V(-46.698, 3.361, 0), V(-49.030122, 3.361, 0)),  # 2
    Part.LineSegment(V(-49.030122, 3.361, 0), V(-50, 2.517898, 0)),  # 3
    Part.LineSegment(V(-50, 2.517898, 0), V(-50, 4.25, 0)),  # 4
], False)
sketch13.addGeometry(Part.LineSegment(V(-46.163835, 4.25, 0), V(-50, 4.25, 0)), True)  # axis
sketch13.addConstraint([
    Sketcher.Constraint("Coincident", 0, 2, 1, 1),
    Sketcher.Constraint("Coincident", 1, 2, 2, 1),
    Sketcher.Constraint("Coincident", 2, 2, 3, 1),
    Sketcher.Constraint("Coincident", 3, 2, 4, 1),
    Sketcher.Constraint("Coincident", 4, 2, 0, 1),
    Sketcher.Constraint("Horizontal", 0),
    Sketcher.Constraint("Horizontal", 2),
    Sketcher.Constraint("Vertical", 4),
    Sketcher.Constraint("Horizontal", 5),
    Sketcher.Constraint("Coincident", 5, 1, 0, 2),
    Sketcher.Constraint("Vertical", 3, 2, 5, 2),
    Sketcher.Constraint("Angle", 1, Q("-121 deg")),
    Sketcher.Constraint("Angle", 3, Q("-139 deg")),
    Sketcher.Constraint("DistanceX", 3, 2, -1, 1, 50.0),
    Sketcher.Constraint("DistanceY", -1, 1, 0, 2, 4.25),
    Sketcher.Constraint("DistanceX", 1, 2, -1, 1, 46.698),
    Sketcher.Constraint("DistanceY", -1, 1, 1, 2, 3.361),
    Sketcher.Constraint("Distance", 3, 1.285101),
])
groove9 = body.newObject("PartDesign::Groove", "Groove008")
groove9.Profile = sketch13
groove9.ReferenceAxis = (sketch13, ["Axis0"])
groove9.Angle = 360

# Sketch on XZ plane
sketch14 = body.newObject("Sketcher::SketchObject", "Sketch013")
sketch14.AttachmentSupport = (doc.getObject("XZ_Plane"), [""])
sketch14.MapMode = "FlatFace"
sketch14.AttachmentOffset = App.Placement(V(0, 0, 102), App.Rotation())
sketch14.addGeometry([
    Part.LineSegment(V(-50, 4.25, 0), V(-46.163835, 4.25, 0)),  # 0
    Part.LineSegment(V(-46.163835, 4.25, 0), V(-46.698, 3.361, 0)),  # 1
    Part.LineSegment(V(-46.698, 3.361, 0), V(-49.030122, 3.361, 0)),  # 2
    Part.LineSegment(V(-49.030122, 3.361, 0), V(-50, 2.517898, 0)),  # 3
    Part.LineSegment(V(-50, 2.517898, 0), V(-50, 4.25, 0)),  # 4
], False)
sketch14.addGeometry(Part.LineSegment(V(-46.163835, 4.25, 0), V(-50, 4.25, 0)), True)  # axis
sketch14.addConstraint([
    Sketcher.Constraint("Coincident", 0, 2, 1, 1),
    Sketcher.Constraint("Coincident", 1, 2, 2, 1),
    Sketcher.Constraint("Coincident", 2, 2, 3, 1),
    Sketcher.Constraint("Coincident", 3, 2, 4, 1),
    Sketcher.Constraint("Coincident", 4, 2, 0, 1),
    Sketcher.Constraint("Horizontal", 0),
    Sketcher.Constraint("Horizontal", 2),
    Sketcher.Constraint("Vertical", 4),
    Sketcher.Constraint("Horizontal", 5),
    Sketcher.Constraint("Coincident", 5, 1, 0, 2),
    Sketcher.Constraint("Vertical", 3, 2, 5, 2),
    Sketcher.Constraint("Angle", 1, Q("-121 deg")),
    Sketcher.Constraint("Angle", 3, Q("-139 deg")),
    Sketcher.Constraint("DistanceX", 3, 2, -1, 1, 50.0),
    Sketcher.Constraint("DistanceY", -1, 1, 0, 2, 4.25),
    Sketcher.Constraint("DistanceX", 1, 2, -1, 1, 46.698),
    Sketcher.Constraint("DistanceY", -1, 1, 1, 2, 3.361),
    Sketcher.Constraint("Distance", 3, 1.285101),
])
groove10 = body.newObject("PartDesign::Groove", "Groove009")
groove10.Profile = sketch14
groove10.ReferenceAxis = (sketch14, ["Axis0"])
groove10.Angle = 360

doc.recompute()
